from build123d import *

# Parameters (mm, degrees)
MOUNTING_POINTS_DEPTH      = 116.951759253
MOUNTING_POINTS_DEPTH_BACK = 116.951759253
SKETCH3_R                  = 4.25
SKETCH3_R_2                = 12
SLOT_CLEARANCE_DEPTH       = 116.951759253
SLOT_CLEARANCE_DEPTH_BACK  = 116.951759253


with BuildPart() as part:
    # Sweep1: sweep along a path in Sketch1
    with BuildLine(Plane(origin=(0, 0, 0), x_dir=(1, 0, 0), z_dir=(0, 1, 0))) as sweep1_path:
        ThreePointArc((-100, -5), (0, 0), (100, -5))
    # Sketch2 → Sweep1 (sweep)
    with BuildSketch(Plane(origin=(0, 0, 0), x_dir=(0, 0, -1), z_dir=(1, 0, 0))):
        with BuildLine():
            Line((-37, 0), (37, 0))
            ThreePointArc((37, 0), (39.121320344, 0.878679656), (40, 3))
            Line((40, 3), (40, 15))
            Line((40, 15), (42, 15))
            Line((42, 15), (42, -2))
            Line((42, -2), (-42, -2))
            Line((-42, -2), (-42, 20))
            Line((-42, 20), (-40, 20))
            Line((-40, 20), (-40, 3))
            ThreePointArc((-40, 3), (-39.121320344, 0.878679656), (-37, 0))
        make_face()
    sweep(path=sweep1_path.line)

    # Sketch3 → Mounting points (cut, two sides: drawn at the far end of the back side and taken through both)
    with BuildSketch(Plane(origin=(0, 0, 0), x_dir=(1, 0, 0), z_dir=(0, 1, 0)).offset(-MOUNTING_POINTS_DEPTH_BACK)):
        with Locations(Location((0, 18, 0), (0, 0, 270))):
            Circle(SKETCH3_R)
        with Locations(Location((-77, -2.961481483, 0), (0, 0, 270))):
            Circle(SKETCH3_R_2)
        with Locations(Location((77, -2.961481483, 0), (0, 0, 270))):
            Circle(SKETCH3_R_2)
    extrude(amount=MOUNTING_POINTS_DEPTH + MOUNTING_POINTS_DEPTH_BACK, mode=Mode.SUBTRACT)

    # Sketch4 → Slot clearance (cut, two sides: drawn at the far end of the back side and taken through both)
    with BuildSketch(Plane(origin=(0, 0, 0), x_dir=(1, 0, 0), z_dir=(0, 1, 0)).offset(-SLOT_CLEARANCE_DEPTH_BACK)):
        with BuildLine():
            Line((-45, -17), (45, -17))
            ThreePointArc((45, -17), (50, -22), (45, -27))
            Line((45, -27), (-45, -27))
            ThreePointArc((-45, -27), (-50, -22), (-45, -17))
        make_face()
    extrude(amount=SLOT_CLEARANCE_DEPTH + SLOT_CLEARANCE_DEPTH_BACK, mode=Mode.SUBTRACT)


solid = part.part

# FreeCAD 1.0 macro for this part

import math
import FreeCAD as App
import Part
import Sketcher

doc = App.newDocument("Part")
params = doc.addObject("Spreadsheet::Sheet", "Params")
for row, (alias, value) in enumerate([
    ("sketch1_radius", "3 mm"),
    ("sketch1_width", "17 mm"),
    ("sketch1_width2", "22 mm"),
    ("sketch1_height", "74 mm"),
    ("sketch1_height2", "2 mm"),
    ("sketch2_radius", "1002.5 mm"),
    ("sketch3_diameter", "24 mm"),
    ("sketch3_diameter2", "8.5 mm"),
    ("sketch4_radius", "5 mm"),
    ("sketch4_width", "90 mm"),
], start=1):
    params.set(f"A{row}", alias)
    params.set(f"B{row}", "=" + value)
    params.setAlias(f"B{row}", alias)

body = doc.addObject("PartDesign::Body", "Body")

sketch1 = body.newObject("Sketcher::SketchObject", "Sketch")
sketch1.AttachmentSupport = (doc.getObject("YZ_Plane"), [""])
sketch1.MapMode = "FlatFace"
sketch1.addGeometry([
    Part.LineSegment(App.Vector(0, -37, 0), App.Vector(0, 37, 0)),
    Part.ArcOfCircle(Part.Circle(App.Vector(3, 37, 0), App.Vector(0, 0, 1), 3), math.radians(90), math.radians(180)),
    Part.LineSegment(App.Vector(3, 40, 0), App.Vector(20, 40, 0)),
    Part.LineSegment(App.Vector(20, 40, 0), App.Vector(20, 42, 0)),
    Part.LineSegment(App.Vector(20, 42, 0), App.Vector(-2, 42, 0)),
    Part.LineSegment(App.Vector(-2, 42, 0), App.Vector(-2, -42, 0)),
    Part.LineSegment(App.Vector(-2, -42, 0), App.Vector(15, -42, 0)),
    Part.LineSegment(App.Vector(15, -42, 0), App.Vector(15, -40, 0)),
    Part.LineSegment(App.Vector(15, -40, 0), App.Vector(3, -40, 0)),
    Part.ArcOfCircle(Part.Circle(App.Vector(3, -37, 0), App.Vector(0, 0, 1), 3), math.radians(180), math.radians(270)),
], False)
sketch1.addConstraint([
    Sketcher.Constraint("Tangent", 0, 2, 1, 2),
    Sketcher.Constraint("Tangent", 1, 1, 2, 1),
    Sketcher.Constraint("Coincident", 2, 2, 3, 1),
    Sketcher.Constraint("Coincident", 3, 2, 4, 1),
    Sketcher.Constraint("Coincident", 4, 2, 5, 1),
    Sketcher.Constraint("Coincident", 5, 2, 6, 1),
    Sketcher.Constraint("Coincident", 6, 2, 7, 1),
    Sketcher.Constraint("Coincident", 7, 2, 8, 1),
    Sketcher.Constraint("Tangent", 8, 2, 9, 2),
    Sketcher.Constraint("Tangent", 9, 1, 0, 1),
    Sketcher.Constraint("Vertical", 0),
    Sketcher.Constraint("Horizontal", 2),
    Sketcher.Constraint("Vertical", 3),
    Sketcher.Constraint("Horizontal", 4),
    Sketcher.Constraint("Vertical", 5),
    Sketcher.Constraint("Horizontal", 6),
    Sketcher.Constraint("Vertical", 7),
    Sketcher.Constraint("Horizontal", 8),
    Sketcher.Constraint("Equal", 1, 9),
    Sketcher.Constraint("Symmetric", 0, 2, 9, 1, -1, 1),
    Sketcher.Constraint("Equal", 2, 6),
    Sketcher.Constraint("Equal", 3, 7),
    Sketcher.Constraint("Radius", 1, 3.0),
    Sketcher.Constraint("DistanceX", 2, 1, 2, 2, 17.0),
    Sketcher.Constraint("DistanceX", 4, 2, 4, 1, 22.0),
    Sketcher.Constraint("DistanceY", 0, 1, 0, 2, 74.0),
    Sketcher.Constraint("DistanceY", 3, 1, 3, 2, 2.0),
])
sketch1.setExpression("Constraints[22]", "Params.sketch1_radius")
sketch1.setExpression("Constraints[23]", "Params.sketch1_width")
sketch1.setExpression("Constraints[24]", "Params.sketch1_width2")
sketch1.setExpression("Constraints[25]", "Params.sketch1_height")
sketch1.setExpression("Constraints[26]", "Params.sketch1_height2")

sketch2 = body.newObject("Sketcher::SketchObject", "Sketch001")
sketch2.AttachmentSupport = (doc.getObject("XZ_Plane"), [""])
sketch2.MapMode = "FlatFace"
sketch2.addGeometry(Part.ArcOfCircle(Part.Circle(App.Vector(0, 1002.5, 0), App.Vector(0, 0, 1), 1002.5), math.radians(-95.72481), math.radians(-84.27519)), False)
sketch2.addConstraint([
    Sketcher.Constraint("PointOnObject", 0, 3, -2),
    Sketcher.Constraint("Radius", 0, 1002.5),
    Sketcher.Constraint("DistanceX", 0, 1, -1, 1, 100.0),
    Sketcher.Constraint("DistanceY", -1, 1, 0, 1, 5.0),
    Sketcher.Constraint("DistanceX", -1, 1, 0, 2, 100.0),
])
sketch2.setExpression("Constraints[1]", "Params.sketch2_radius")
doc.recompute()

additivepipe = body.newObject("PartDesign::AdditivePipe", "AdditivePipe")
additivepipe.Profile = sketch1
additivepipe.Spine = (sketch2, ["Edge1"])

sketch3 = body.newObject("Sketcher::SketchObject", "Sketch002")
sketch3.AttachmentSupport = (doc.getObject("XZ_Plane"), [""])
sketch3.MapMode = "FlatFace"
sketch3.addGeometry([
    Part.Circle(App.Vector(0, -18, 0), App.Vector(0, 0, 1), 4.25),
    Part.Circle(App.Vector(-77, 2.961481, 0), App.Vector(0, 0, 1), 12),
    Part.Circle(App.Vector(77, 2.961481, 0), App.Vector(0, 0, 1), 12),
], False)
sketch3.addConstraint([
    Sketcher.Constraint("Equal", 1, 2),
    Sketcher.Constraint("Symmetric", 1, 3, 2, 3, -2),
    Sketcher.Constraint("PointOnObject", 0, 3, -2),
    Sketcher.Constraint("Diameter", 1, 24.0),
    Sketcher.Constraint("Diameter", 0, 8.5),
    Sketcher.Constraint("DistanceY", 0, 3, -1, 1, 18.0),
    Sketcher.Constraint("DistanceX", 1, 3, -1, 1, 77.0),
    Sketcher.Constraint("DistanceY", -1, 1, 1, 3, 2.961481),
])
sketch3.setExpression("Constraints[3]", "Params.sketch3_diameter")
sketch3.setExpression("Constraints[4]", "Params.sketch3_diameter2")
pocket1 = body.newObject("PartDesign::Pocket", "Pocket")
pocket1.Profile = sketch3
pocket1.Type = "ThroughAll"
pocket1.Midplane = True

sketch4 = body.newObject("Sketcher::SketchObject", "Sketch003")
sketch4.AttachmentSupport = (doc.getObject("XZ_Plane"), [""])
sketch4.MapMode = "FlatFace"
sketch4.addGeometry([
    Part.LineSegment(App.Vector(45, 17, 0), App.Vector(-45, 17, 0)),
    Part.ArcOfCircle(Part.Circle(App.Vector(-45, 22, 0), App.Vector(0, 0, 1), 5), math.radians(90), math.radians(270)),
    Part.LineSegment(App.Vector(-45, 27, 0), App.Vector(45, 27, 0)),
    Part.ArcOfCircle(Part.Circle(App.Vector(45, 22, 0), App.Vector(0, 0, 1), 5), math.radians(-90), math.radians(90)),
], False)
sketch4.addConstraint([
    Sketcher.Constraint("Tangent", 0, 2, 1, 2),
    Sketcher.Constraint("Tangent", 1, 1, 2, 1),
    Sketcher.Constraint("Tangent", 2, 2, 3, 2),
    Sketcher.Constraint("Tangent", 3, 1, 0, 1),
    Sketcher.Constraint("Horizontal", 0),
    Sketcher.Constraint("Horizontal", 2),
    Sketcher.Constraint("Radius", 1, 5.0),
    Sketcher.Constraint("DistanceX", 0, 2, 0, 1, 90.0),
    Sketcher.Constraint("DistanceX", 1, 3, -1, 1, 45.0),
    Sketcher.Constraint("DistanceY", -1, 1, 1, 3, 22.0),
])
sketch4.setExpression("Constraints[6]", "Params.sketch4_radius")
sketch4.setExpression("Constraints[7]", "Params.sketch4_width")
pocket2 = body.newObject("PartDesign::Pocket", "Pocket001")
pocket2.Profile = sketch4
pocket2.Type = "ThroughAll"
pocket2.Midplane = True

doc.recompute()
